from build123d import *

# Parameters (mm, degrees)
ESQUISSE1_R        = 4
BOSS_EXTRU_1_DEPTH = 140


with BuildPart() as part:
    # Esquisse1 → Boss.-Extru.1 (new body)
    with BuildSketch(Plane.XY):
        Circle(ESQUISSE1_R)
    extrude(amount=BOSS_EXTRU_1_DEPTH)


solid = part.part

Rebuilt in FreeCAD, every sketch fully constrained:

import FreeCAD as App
import Part
import Sketcher
from FreeCAD import Vector
Q = App.Units.Quantity

doc = App.newDocument("Part")
body = doc.addObject("PartDesign::Body", "Body")

sketch1 = doc.addObject("Sketcher::SketchObject", "Sketch")
body.addObject(sketch1)
sketch1.AttachmentSupport = (doc.XY_Plane, [""])
sketch1.MapMode = "FlatFace"
sketch1.addGeometry(Part.Circle(Vector(0, 0, 0), Vector(0, 0, 1), 4), False)
sketch1.addConstraint([
    Sketcher.Constraint("Coincident", 0, 3, -1, 1),
    Sketcher.Constraint("Diameter", 0, Q("8 mm")),
])
pad1 = doc.addObject("PartDesign::Pad", "Pad")
body.addObject(pad1)
pad1.Profile = sketch1
pad1.Length = 140

doc.recompute()
